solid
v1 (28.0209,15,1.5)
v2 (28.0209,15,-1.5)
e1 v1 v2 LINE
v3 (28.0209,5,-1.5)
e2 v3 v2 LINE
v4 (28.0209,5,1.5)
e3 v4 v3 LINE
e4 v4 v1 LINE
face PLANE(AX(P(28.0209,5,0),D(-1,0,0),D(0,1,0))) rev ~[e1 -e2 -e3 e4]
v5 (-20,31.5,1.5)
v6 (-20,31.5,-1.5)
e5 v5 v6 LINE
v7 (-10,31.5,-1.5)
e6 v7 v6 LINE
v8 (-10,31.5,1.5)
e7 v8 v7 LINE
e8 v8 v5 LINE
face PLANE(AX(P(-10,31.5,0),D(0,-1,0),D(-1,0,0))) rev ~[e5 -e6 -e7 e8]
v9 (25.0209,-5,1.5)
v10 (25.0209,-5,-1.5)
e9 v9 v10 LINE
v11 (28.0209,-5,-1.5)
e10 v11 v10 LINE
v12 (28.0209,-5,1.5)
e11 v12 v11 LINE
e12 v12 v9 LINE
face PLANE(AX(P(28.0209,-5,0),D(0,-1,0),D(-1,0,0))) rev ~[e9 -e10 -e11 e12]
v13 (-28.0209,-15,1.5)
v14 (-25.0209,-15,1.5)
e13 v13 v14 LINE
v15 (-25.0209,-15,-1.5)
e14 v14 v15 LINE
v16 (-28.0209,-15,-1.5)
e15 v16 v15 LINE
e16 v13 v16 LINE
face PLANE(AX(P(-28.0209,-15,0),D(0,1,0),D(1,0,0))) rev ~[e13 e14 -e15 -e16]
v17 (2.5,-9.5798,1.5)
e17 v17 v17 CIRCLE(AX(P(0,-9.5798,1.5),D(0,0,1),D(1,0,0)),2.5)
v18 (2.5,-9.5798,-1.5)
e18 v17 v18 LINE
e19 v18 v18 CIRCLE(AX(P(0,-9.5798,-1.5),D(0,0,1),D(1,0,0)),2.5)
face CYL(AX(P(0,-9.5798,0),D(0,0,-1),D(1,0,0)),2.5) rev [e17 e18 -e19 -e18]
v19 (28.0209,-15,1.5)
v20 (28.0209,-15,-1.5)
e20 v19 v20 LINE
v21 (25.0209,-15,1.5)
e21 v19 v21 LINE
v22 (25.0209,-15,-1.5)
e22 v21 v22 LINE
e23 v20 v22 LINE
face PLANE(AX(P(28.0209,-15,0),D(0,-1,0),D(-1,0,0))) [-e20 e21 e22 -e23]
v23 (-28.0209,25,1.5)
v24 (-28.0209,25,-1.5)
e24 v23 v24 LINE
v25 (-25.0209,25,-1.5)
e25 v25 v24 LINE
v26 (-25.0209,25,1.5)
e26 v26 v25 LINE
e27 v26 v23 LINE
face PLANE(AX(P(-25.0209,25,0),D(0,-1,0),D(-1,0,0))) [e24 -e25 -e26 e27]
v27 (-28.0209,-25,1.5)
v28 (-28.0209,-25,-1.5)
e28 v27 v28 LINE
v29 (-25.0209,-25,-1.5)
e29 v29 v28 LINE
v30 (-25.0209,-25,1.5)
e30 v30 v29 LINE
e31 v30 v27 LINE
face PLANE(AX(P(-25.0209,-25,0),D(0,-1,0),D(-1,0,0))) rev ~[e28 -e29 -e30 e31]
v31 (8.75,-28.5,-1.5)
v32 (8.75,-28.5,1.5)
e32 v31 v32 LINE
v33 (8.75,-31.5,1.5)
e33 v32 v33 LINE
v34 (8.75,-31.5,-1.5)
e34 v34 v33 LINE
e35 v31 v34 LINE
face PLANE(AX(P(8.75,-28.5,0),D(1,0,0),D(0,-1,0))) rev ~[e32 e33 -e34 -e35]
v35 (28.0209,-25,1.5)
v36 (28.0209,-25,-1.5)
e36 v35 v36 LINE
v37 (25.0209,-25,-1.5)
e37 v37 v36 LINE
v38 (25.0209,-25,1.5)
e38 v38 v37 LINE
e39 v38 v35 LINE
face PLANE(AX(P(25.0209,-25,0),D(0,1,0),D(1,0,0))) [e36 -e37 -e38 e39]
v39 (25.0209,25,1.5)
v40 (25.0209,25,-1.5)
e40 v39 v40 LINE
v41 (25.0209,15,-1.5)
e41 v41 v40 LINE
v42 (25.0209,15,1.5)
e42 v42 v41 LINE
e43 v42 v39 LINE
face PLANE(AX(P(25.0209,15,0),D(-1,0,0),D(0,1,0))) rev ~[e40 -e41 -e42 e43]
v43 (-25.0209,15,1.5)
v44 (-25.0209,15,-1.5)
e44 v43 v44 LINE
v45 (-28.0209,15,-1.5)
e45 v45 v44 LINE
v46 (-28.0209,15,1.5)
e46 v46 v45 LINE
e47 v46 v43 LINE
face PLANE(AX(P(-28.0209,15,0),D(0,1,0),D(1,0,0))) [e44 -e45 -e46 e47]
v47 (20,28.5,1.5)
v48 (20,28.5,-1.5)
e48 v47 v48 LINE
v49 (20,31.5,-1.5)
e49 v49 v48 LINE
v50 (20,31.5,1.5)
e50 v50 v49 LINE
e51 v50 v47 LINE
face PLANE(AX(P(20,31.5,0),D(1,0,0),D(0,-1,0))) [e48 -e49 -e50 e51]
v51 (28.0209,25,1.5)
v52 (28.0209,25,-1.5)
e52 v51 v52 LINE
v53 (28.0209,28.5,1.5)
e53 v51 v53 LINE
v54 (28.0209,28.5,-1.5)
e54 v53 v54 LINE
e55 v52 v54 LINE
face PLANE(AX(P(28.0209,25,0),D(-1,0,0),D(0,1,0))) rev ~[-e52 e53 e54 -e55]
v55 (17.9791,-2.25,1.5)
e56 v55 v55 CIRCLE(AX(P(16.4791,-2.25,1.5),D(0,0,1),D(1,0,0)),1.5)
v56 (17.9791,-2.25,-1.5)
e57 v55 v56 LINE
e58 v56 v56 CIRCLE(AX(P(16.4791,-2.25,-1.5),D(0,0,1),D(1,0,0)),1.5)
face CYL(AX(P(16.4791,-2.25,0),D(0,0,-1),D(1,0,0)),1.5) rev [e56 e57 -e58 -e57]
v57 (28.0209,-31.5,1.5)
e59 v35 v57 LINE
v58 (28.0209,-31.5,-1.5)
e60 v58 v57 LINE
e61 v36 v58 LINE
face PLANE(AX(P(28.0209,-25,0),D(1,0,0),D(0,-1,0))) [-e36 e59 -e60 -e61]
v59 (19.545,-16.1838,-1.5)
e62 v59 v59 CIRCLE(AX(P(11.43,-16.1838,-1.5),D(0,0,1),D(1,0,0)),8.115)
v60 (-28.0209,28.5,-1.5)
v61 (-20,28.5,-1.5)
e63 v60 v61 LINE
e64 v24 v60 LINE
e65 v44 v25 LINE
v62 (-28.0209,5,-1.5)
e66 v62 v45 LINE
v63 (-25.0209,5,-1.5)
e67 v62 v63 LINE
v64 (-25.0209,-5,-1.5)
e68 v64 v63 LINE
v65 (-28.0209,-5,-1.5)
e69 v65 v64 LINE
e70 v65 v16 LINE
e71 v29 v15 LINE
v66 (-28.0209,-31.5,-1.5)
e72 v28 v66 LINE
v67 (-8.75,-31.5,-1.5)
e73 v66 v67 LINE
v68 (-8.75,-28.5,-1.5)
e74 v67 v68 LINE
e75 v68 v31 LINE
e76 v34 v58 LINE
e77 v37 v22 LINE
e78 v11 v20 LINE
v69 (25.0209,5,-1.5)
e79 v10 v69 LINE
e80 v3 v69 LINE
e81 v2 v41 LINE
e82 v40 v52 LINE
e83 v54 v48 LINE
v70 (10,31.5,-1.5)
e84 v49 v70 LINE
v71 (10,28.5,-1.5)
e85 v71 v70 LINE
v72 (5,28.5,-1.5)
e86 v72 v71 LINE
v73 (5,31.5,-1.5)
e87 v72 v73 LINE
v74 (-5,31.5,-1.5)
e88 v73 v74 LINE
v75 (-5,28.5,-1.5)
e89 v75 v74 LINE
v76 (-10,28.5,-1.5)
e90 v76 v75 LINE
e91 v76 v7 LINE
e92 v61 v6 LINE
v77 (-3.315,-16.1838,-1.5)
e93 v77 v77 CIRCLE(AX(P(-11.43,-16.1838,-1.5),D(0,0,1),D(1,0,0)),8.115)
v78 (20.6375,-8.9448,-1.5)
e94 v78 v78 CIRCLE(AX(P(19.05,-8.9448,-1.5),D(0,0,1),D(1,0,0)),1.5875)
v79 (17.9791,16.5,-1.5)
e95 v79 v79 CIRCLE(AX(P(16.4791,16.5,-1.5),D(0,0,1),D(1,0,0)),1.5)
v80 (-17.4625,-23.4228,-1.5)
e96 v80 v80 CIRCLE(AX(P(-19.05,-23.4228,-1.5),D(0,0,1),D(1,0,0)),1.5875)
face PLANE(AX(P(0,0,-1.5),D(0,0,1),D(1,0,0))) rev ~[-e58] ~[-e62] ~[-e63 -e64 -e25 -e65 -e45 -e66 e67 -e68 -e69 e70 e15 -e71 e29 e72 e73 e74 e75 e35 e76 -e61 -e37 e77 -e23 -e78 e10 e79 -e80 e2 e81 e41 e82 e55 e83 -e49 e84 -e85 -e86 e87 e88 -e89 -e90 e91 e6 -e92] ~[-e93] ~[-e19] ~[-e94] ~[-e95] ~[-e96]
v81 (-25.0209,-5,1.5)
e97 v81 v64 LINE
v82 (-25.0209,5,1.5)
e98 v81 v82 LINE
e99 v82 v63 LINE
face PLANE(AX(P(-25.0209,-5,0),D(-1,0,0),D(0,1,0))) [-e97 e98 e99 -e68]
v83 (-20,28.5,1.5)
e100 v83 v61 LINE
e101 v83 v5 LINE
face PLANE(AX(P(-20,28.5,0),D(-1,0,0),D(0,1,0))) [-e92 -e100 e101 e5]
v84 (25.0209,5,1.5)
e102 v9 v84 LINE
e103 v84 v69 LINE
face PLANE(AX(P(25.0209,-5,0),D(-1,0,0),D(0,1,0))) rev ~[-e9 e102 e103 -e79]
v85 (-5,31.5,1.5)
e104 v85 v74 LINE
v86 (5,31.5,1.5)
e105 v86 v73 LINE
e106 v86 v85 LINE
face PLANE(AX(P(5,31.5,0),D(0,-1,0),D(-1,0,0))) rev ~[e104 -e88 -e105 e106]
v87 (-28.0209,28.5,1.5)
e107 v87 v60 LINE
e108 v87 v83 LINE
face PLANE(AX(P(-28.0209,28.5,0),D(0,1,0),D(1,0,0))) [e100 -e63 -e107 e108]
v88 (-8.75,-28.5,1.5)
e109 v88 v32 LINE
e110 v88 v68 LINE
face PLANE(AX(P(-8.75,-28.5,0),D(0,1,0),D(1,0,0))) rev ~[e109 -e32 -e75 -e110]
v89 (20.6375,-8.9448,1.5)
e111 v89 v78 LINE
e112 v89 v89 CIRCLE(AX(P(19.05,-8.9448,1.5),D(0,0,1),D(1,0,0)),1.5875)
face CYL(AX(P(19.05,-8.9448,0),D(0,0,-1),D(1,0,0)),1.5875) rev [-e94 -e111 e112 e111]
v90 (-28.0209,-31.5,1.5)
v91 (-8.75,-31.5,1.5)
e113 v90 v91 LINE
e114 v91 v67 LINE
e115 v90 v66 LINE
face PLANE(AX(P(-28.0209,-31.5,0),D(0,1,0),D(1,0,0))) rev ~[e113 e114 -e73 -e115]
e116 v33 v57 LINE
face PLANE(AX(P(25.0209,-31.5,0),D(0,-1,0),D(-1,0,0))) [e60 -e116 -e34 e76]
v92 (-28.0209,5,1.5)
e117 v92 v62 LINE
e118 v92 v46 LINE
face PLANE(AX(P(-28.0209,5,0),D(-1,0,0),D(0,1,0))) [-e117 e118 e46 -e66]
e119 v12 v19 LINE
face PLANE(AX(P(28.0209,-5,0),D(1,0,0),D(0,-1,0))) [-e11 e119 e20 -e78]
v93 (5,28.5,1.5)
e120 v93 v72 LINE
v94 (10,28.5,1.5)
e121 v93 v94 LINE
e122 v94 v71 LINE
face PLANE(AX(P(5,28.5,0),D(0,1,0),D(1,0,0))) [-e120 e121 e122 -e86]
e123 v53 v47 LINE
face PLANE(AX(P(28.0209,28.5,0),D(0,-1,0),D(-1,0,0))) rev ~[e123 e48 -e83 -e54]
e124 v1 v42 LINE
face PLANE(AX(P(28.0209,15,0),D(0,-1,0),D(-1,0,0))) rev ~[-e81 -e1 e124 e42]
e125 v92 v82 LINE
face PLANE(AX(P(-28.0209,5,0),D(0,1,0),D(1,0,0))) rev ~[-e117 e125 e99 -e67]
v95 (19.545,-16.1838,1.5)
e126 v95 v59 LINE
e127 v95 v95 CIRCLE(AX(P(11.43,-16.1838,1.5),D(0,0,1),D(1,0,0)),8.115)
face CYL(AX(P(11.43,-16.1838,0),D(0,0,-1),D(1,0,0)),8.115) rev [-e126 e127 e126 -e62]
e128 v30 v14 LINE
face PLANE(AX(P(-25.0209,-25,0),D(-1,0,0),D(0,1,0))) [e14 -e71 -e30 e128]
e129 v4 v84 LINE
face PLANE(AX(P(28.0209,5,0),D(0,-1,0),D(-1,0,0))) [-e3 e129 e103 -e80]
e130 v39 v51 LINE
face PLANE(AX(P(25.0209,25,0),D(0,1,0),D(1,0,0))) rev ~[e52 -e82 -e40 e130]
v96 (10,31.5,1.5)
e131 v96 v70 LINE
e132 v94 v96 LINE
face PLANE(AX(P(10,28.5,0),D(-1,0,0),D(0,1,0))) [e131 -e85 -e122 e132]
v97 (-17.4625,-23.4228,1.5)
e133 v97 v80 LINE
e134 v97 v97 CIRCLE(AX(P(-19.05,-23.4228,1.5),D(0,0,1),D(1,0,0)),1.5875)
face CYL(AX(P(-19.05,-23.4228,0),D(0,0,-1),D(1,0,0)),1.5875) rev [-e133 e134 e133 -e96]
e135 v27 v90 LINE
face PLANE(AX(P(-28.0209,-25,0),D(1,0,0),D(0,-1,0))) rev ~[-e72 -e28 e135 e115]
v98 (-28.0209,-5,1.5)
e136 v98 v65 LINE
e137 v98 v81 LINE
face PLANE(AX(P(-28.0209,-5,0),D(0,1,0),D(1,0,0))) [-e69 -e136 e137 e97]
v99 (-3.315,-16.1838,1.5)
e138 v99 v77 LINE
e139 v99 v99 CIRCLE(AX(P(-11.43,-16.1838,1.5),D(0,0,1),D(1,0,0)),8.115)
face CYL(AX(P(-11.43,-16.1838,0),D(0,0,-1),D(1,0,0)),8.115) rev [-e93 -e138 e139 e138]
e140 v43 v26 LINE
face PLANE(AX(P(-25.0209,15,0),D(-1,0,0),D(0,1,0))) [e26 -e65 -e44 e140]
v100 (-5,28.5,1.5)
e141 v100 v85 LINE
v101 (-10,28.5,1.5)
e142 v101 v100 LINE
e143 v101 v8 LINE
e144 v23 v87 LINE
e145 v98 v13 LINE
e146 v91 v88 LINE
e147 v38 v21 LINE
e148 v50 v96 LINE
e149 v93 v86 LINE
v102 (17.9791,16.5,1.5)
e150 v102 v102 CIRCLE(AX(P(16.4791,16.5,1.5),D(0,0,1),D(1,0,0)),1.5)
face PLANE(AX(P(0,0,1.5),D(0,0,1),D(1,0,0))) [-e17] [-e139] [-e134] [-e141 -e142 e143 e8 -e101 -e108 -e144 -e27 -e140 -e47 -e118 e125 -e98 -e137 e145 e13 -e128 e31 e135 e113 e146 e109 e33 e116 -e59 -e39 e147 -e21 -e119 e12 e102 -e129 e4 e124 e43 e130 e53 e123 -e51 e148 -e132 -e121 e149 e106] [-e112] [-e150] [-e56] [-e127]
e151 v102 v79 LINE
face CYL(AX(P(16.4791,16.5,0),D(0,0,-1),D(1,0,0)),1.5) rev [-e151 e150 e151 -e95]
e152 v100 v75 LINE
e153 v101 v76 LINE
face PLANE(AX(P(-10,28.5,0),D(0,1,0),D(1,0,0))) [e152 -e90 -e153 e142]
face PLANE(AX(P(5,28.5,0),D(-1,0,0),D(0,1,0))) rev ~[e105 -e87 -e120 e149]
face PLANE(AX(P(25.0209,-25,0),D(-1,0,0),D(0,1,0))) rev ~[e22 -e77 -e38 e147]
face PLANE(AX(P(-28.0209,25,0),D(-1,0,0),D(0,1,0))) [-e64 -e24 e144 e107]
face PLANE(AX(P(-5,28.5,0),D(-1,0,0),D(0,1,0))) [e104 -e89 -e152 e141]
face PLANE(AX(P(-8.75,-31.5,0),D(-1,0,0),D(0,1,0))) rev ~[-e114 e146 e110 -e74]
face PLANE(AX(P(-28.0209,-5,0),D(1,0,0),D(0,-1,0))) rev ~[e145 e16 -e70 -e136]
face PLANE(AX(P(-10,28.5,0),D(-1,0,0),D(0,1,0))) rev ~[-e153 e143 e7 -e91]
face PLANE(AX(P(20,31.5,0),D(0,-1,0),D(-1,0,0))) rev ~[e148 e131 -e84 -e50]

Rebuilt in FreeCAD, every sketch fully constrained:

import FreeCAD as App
import Part
import Sketcher
from FreeCAD import Vector

doc = App.newDocument("Part")
body = doc.addObject("PartDesign::Body", "Body")

sketch1 = body.newObject("Sketcher::SketchObject", "Sketch")
sketch1.AttachmentSupport = (doc.getObject("XY_Plane"), [""])
sketch1.MapMode = "FlatFace"
sketch1.addGeometry([
    Part.LineSegment(Vector(-8.8, -28.5, 0), Vector(8.8, -28.5, 0)),
    Part.LineSegment(Vector(8.8, -28.5, 0), Vector(8.8, -31.5, 0)),
    Part.LineSegment(Vector(8.8, -31.5, 0), Vector(28, -31.5, 0)),
    Part.LineSegment(Vector(28, -31.5, 0), Vector(28, -25, 0)),
    Part.LineSegment(Vector(28, -25, 0), Vector(25, -25, 0)),
    Part.LineSegment(Vector(25, -25, 0), Vector(25, -15, 0)),
    Part.LineSegment(Vector(25, -15, 0), Vector(28, -15, 0)),
    Part.LineSegment(Vector(28, -15, 0), Vector(28, -5, 0)),
    Part.LineSegment(Vector(28, -5, 0), Vector(25, -5, 0)),
    Part.LineSegment(Vector(25, -5, 0), Vector(25, 5, 0)),
    Part.LineSegment(Vector(25, 5, 0), Vector(28, 5, 0)),
    Part.LineSegment(Vector(28, 5, 0), Vector(28, 15, 0)),
    Part.LineSegment(Vector(28, 15, 0), Vector(25, 15, 0)),
    Part.LineSegment(Vector(25, 15, 0), Vector(25, 25, 0)),
    Part.LineSegment(Vector(25, 25, 0), Vector(28, 25, 0)),
    Part.LineSegment(Vector(28, 25, 0), Vector(28, 28.5, 0)),
    Part.LineSegment(Vector(28, 28.5, 0), Vector(20, 28.5, 0)),
    Part.LineSegment(Vector(20, 28.5, 0), Vector(20, 31.5, 0)),
    Part.LineSegment(Vector(20, 31.5, 0), Vector(10, 31.5, 0)),
    Part.LineSegment(Vector(10, 31.5, 0), Vector(10, 28.5, 0)),
    Part.LineSegment(Vector(10, 28.5, 0), Vector(5, 28.5, 0)),
    Part.LineSegment(Vector(5, 28.5, 0), Vector(5, 31.5, 0)),
    Part.LineSegment(Vector(5, 31.5, 0), Vector(-5, 31.5, 0)),
    Part.LineSegment(Vector(-5, 31.5, 0), Vector(-5, 28.5, 0)),
    Part.LineSegment(Vector(-5, 28.5, 0), Vector(-10, 28.5, 0)),
    Part.LineSegment(Vector(-10, 28.5, 0), Vector(-10, 31.5, 0)),
    Part.LineSegment(Vector(-10, 31.5, 0), Vector(-20, 31.5, 0)),
    Part.LineSegment(Vector(-20, 31.5, 0), Vector(-20, 28.5, 0)),
    Part.LineSegment(Vector(-20, 28.5, 0), Vector(-28, 28.5, 0)),
    Part.LineSegment(Vector(-28, 28.5, 0), Vector(-28, 25, 0)),
    Part.LineSegment(Vector(-28, 25, 0), Vector(-25, 25, 0)),
    Part.LineSegment(Vector(-25, 25, 0), Vector(-25, 15, 0)),
    Part.LineSegment(Vector(-25, 15, 0), Vector(-28, 15, 0)),
    Part.LineSegment(Vector(-28, 15, 0), Vector(-28, 5, 0)),
    Part.LineSegment(Vector(-28, 5, 0), Vector(-25, 5, 0)),
    Part.LineSegment(Vector(-25, 5, 0), Vector(-25, -5, 0)),
    Part.LineSegment(Vector(-25, -5, 0), Vector(-28, -5, 0)),
    Part.LineSegment(Vector(-28, -5, 0), Vector(-28, -15, 0)),
    Part.LineSegment(Vector(-28, -15, 0), Vector(-25, -15, 0)),
    Part.LineSegment(Vector(-25, -15, 0), Vector(-25, -25, 0)),
    Part.LineSegment(Vector(-25, -25, 0), Vector(-28, -25, 0)),
    Part.LineSegment(Vector(-28, -25, 0), Vector(-28, -31.5, 0)),
    Part.LineSegment(Vector(-28, -31.5, 0), Vector(-8.8, -31.5, 0)),
    Part.LineSegment(Vector(-8.8, -31.5, 0), Vector(-8.8, -28.5, 0)),
    Part.Circle(Vector(-19.1, -23.4, 0), Vector(0, 0, 1), 1.6),
    Part.Circle(Vector(-11.4, -16.2, 0), Vector(0, 0, 1), 8.1),
    Part.Circle(Vector(11.4, -16.2, 0), Vector(0, 0, 1), 8.1),
    Part.Circle(Vector(0, -9.6, 0), Vector(0, 0, 1), 2.5),
    Part.Circle(Vector(19.1, -8.9, 0), Vector(0, 0, 1), 1.6),
    Part.Circle(Vector(16.5, -2.2, 0), Vector(0, 0, 1), 1.5),
    Part.Circle(Vector(16.5, 16.5, 0), Vector(0, 0, 1), 1.5),
], False)
sketch1.addConstraint([
    Sketcher.Constraint("Coincident", 0, 2, 1, 1),
    Sketcher.Constraint("Coincident", 1, 2, 2, 1),
    Sketcher.Constraint("Coincident", 2, 2, 3, 1),
    Sketcher.Constraint("Coincident", 3, 2, 4, 1),
    Sketcher.Constraint("Coincident", 4, 2, 5, 1),
    Sketcher.Constraint("Coincident", 5, 2, 6, 1),
    Sketcher.Constraint("Coincident", 6, 2, 7, 1),
    Sketcher.Constraint("Coincident", 7, 2, 8, 1),
    Sketcher.Constraint("Coincident", 8, 2, 9, 1),
    Sketcher.Constraint("Coincident", 9, 2, 10, 1),
    Sketcher.Constraint("Coincident", 10, 2, 11, 1),
    Sketcher.Constraint("Coincident", 11, 2, 12, 1),
    Sketcher.Constraint("Coincident", 12, 2, 13, 1),
    Sketcher.Constraint("Coincident", 13, 2, 14, 1),
    Sketcher.Constraint("Coincident", 14, 2, 15, 1),
    Sketcher.Constraint("Coincident", 15, 2, 16, 1),
    Sketcher.Constraint("Coincident", 16, 2, 17, 1),
    Sketcher.Constraint("Coincident", 17, 2, 18, 1),
    Sketcher.Constraint("Coincident", 18, 2, 19, 1),
    Sketcher.Constraint("Coincident", 19, 2, 20, 1),
    Sketcher.Constraint("Coincident", 20, 2, 21, 1),
    Sketcher.Constraint("Coincident", 21, 2, 22, 1),
    Sketcher.Constraint("Coincident", 22, 2, 23, 1),
    Sketcher.Constraint("Coincident", 23, 2, 24, 1),
    Sketcher.Constraint("Coincident", 24, 2, 25, 1),
    Sketcher.Constraint("Coincident", 25, 2, 26, 1),
    Sketcher.Constraint("Coincident", 26, 2, 27, 1),
    Sketcher.Constraint("Coincident", 27, 2, 28, 1),
    Sketcher.Constraint("Coincident", 28, 2, 29, 1),
    Sketcher.Constraint("Coincident", 29, 2, 30, 1),
    Sketcher.Constraint("Coincident", 30, 2, 31, 1),
    Sketcher.Constraint("Coincident", 31, 2, 32, 1),
    Sketcher.Constraint("Coincident", 32, 2, 33, 1),
    Sketcher.Constraint("Coincident", 33, 2, 34, 1),
    Sketcher.Constraint("Coincident", 34, 2, 35, 1),
    Sketcher.Constraint("Coincident", 35, 2, 36, 1),
    Sketcher.Constraint("Coincident", 36, 2, 37, 1),
    Sketcher.Constraint("Coincident", 37, 2, 38, 1),
    Sketcher.Constraint("Coincident", 38, 2, 39, 1),
    Sketcher.Constraint("Coincident", 39, 2, 40, 1),
    Sketcher.Constraint("Coincident", 40, 2, 41, 1),
    Sketcher.Constraint("Coincident", 41, 2, 42, 1),
    Sketcher.Constraint("Coincident", 42, 2, 43, 1),
    Sketcher.Constraint("Coincident", 43, 2, 0, 1),
    Sketcher.Constraint("Horizontal", 0),
    Sketcher.Constraint("Vertical", 1),
    Sketcher.Constraint("Horizontal", 2),
    Sketcher.Constraint("Vertical", 3),
    Sketcher.Constraint("Horizontal", 4),
    Sketcher.Constraint("Vertical", 5),
    Sketcher.Constraint("Horizontal", 6),
    Sketcher.Constraint("Vertical", 7),
    Sketcher.Constraint("Horizontal", 8),
    Sketcher.Constraint("Vertical", 9),
    Sketcher.Constraint("Horizontal", 10),
    Sketcher.Constraint("Vertical", 11),
    Sketcher.Constraint("Horizontal", 12),
    Sketcher.Constraint("Vertical", 13),
    Sketcher.Constraint("Horizontal", 14),
    Sketcher.Constraint("Vertical", 15),
    Sketcher.Constraint("Horizontal", 16),
    Sketcher.Constraint("Vertical", 17),
    Sketcher.Constraint("Horizontal", 18),
    Sketcher.Constraint("Vertical", 19),
    Sketcher.Constraint("Horizontal", 20),
    Sketcher.Constraint("Vertical", 21),
    Sketcher.Constraint("Horizontal", 22),
    Sketcher.Constraint("Vertical", 23),
    Sketcher.Constraint("Horizontal", 24),
    Sketcher.Constraint("Vertical", 25),
    Sketcher.Constraint("Horizontal", 26),
    Sketcher.Constraint("Vertical", 27),
    Sketcher.Constraint("Horizontal", 28),
    Sketcher.Constraint("Vertical", 29),
    Sketcher.Constraint("Horizontal", 30),
    Sketcher.Constraint("Vertical", 31),
    Sketcher.Constraint("Horizontal", 32),
    Sketcher.Constraint("Vertical", 33),
    Sketcher.Constraint("Horizontal", 34),
    Sketcher.Constraint("Vertical", 35),
    Sketcher.Constraint("Horizontal", 36),
    Sketcher.Constraint("Vertical", 37),
    Sketcher.Constraint("Horizontal", 38),
    Sketcher.Constraint("Vertical", 39),
    Sketcher.Constraint("Horizontal", 40),
    Sketcher.Constraint("Vertical", 41),
    Sketcher.Constraint("Horizontal", 42),
    Sketcher.Constraint("Vertical", 43),
    Sketcher.Constraint("Equal", 45, 46),
    Sketcher.Constraint("Equal", 44, 48),
    Sketcher.Constraint("Equal", 49, 50),
    Sketcher.Constraint("Symmetric", 3, 2, 29, 2, -1, 1),
    Sketcher.Constraint("Symmetric", 5, 2, 31, 2, -1, 1),
    Sketcher.Constraint("Symmetric", 7, 2, 33, 2, -1, 1),
    Sketcher.Constraint("Symmetric", 9, 2, 35, 2, -1, 1),
    Sketcher.Constraint("Symmetric", 11, 2, 37, 2, -1, 1),
    Sketcher.Constraint("Symmetric", 13, 2, 39, 2, -1, 1),
    Sketcher.Constraint("Symmetric", 45, 3, 46, 3, -2),
    Sketcher.Constraint("Symmetric", 20, 2, 23, 2, -2),
    Sketcher.Constraint("Symmetric", 18, 2, 25, 2, -2),
    Sketcher.Constraint("Symmetric", 16, 2, 27, 2, -2),
    Sketcher.Constraint("Symmetric", 14, 2, 29, 2, -2),
    Sketcher.Constraint("Symmetric", 12, 2, 31, 2, -2),
    Sketcher.Constraint("Symmetric", 10, 2, 33, 2, -2),
    Sketcher.Constraint("Symmetric", 2, 2, 41, 2, -2),
    Sketcher.Constraint("PointOnObject", 47, 3, -2),
    Sketcher.Constraint("Horizontal", 16, 2, 19, 2),
    Sketcher.Constraint("Horizontal", 18, 2, 21, 2),
    Sketcher.Constraint("Vertical", 49, 3, 50, 3),
    Sketcher.Constraint("Vertical", 3, 2, 6, 2),
    Sketcher.Constraint("Vertical", 5, 2, 8, 2),
    Sketcher.Constraint("Equal", 18, 22),
    Sketcher.Constraint("Equal", 2, 42),
    Sketcher.Constraint("Equal", 40, 1),
    Sketcher.Constraint("Equal", 26, 5),
    Sketcher.Constraint("Equal", 5, 7),
    Sketcher.Constraint("Equal", 7, 9),
    Sketcher.Constraint("Equal", 1, 17),
    Sketcher.Constraint("Diameter", 47, 5.0),
    Sketcher.Constraint("Diameter", 49, 3.0),
    Sketcher.Constraint("DistanceX", 4, 2, 4, 1, 3.0),
    Sketcher.Constraint("DistanceX", 18, 2, 18, 1, 10.0),
    Sketcher.Constraint("DistanceX", 20, 2, 20, 1, 5.0),
    Sketcher.Constraint("DistanceY", 50, 3, 17, 2, 15.0),
    Sketcher.Constraint("Diameter", 45, 16.23),
    Sketcher.Constraint("Diameter", 44, 3.175),
    Sketcher.Constraint("DistanceX", 0, 1, 0, 2, 17.5),
    Sketcher.Constraint("DistanceY", 3, 1, 3, 2, 6.5),
    Sketcher.Constraint("DistanceY", 15, 1, 15, 2, 3.5),
    Sketcher.Constraint("DistanceX", 44, 3, 48, 3, 38.1),
    Sketcher.Constraint("DistanceX", 0, 2, 48, 3, 10.3),
    Sketcher.Constraint("DistanceX", 2, 1, 2, 2, 19.271),
    Sketcher.Constraint("DistanceX", 45, 3, -1, 1, 11.43),
    Sketcher.Constraint("DistanceY", 49, 3, -1, 1, 2.25),
    Sketcher.Constraint("DistanceX", -1, 1, 49, 3, 16.479),
    Sketcher.Constraint("DistanceY", 44, 3, 45, 3, 7.239),
    Sketcher.Constraint("DistanceY", 45, 3, 47, 3, 6.604),
    Sketcher.Constraint("DistanceY", 46, 3, 48, 3, 7.239),
    Sketcher.Constraint("DistanceY", 44, 3, -1, 1, 23.4228),
])
pad1 = body.newObject("PartDesign::Pad", "Pad")
pad1.Profile = sketch1
pad1.Length = 3
pad1.Midplane = True

doc.recompute()
